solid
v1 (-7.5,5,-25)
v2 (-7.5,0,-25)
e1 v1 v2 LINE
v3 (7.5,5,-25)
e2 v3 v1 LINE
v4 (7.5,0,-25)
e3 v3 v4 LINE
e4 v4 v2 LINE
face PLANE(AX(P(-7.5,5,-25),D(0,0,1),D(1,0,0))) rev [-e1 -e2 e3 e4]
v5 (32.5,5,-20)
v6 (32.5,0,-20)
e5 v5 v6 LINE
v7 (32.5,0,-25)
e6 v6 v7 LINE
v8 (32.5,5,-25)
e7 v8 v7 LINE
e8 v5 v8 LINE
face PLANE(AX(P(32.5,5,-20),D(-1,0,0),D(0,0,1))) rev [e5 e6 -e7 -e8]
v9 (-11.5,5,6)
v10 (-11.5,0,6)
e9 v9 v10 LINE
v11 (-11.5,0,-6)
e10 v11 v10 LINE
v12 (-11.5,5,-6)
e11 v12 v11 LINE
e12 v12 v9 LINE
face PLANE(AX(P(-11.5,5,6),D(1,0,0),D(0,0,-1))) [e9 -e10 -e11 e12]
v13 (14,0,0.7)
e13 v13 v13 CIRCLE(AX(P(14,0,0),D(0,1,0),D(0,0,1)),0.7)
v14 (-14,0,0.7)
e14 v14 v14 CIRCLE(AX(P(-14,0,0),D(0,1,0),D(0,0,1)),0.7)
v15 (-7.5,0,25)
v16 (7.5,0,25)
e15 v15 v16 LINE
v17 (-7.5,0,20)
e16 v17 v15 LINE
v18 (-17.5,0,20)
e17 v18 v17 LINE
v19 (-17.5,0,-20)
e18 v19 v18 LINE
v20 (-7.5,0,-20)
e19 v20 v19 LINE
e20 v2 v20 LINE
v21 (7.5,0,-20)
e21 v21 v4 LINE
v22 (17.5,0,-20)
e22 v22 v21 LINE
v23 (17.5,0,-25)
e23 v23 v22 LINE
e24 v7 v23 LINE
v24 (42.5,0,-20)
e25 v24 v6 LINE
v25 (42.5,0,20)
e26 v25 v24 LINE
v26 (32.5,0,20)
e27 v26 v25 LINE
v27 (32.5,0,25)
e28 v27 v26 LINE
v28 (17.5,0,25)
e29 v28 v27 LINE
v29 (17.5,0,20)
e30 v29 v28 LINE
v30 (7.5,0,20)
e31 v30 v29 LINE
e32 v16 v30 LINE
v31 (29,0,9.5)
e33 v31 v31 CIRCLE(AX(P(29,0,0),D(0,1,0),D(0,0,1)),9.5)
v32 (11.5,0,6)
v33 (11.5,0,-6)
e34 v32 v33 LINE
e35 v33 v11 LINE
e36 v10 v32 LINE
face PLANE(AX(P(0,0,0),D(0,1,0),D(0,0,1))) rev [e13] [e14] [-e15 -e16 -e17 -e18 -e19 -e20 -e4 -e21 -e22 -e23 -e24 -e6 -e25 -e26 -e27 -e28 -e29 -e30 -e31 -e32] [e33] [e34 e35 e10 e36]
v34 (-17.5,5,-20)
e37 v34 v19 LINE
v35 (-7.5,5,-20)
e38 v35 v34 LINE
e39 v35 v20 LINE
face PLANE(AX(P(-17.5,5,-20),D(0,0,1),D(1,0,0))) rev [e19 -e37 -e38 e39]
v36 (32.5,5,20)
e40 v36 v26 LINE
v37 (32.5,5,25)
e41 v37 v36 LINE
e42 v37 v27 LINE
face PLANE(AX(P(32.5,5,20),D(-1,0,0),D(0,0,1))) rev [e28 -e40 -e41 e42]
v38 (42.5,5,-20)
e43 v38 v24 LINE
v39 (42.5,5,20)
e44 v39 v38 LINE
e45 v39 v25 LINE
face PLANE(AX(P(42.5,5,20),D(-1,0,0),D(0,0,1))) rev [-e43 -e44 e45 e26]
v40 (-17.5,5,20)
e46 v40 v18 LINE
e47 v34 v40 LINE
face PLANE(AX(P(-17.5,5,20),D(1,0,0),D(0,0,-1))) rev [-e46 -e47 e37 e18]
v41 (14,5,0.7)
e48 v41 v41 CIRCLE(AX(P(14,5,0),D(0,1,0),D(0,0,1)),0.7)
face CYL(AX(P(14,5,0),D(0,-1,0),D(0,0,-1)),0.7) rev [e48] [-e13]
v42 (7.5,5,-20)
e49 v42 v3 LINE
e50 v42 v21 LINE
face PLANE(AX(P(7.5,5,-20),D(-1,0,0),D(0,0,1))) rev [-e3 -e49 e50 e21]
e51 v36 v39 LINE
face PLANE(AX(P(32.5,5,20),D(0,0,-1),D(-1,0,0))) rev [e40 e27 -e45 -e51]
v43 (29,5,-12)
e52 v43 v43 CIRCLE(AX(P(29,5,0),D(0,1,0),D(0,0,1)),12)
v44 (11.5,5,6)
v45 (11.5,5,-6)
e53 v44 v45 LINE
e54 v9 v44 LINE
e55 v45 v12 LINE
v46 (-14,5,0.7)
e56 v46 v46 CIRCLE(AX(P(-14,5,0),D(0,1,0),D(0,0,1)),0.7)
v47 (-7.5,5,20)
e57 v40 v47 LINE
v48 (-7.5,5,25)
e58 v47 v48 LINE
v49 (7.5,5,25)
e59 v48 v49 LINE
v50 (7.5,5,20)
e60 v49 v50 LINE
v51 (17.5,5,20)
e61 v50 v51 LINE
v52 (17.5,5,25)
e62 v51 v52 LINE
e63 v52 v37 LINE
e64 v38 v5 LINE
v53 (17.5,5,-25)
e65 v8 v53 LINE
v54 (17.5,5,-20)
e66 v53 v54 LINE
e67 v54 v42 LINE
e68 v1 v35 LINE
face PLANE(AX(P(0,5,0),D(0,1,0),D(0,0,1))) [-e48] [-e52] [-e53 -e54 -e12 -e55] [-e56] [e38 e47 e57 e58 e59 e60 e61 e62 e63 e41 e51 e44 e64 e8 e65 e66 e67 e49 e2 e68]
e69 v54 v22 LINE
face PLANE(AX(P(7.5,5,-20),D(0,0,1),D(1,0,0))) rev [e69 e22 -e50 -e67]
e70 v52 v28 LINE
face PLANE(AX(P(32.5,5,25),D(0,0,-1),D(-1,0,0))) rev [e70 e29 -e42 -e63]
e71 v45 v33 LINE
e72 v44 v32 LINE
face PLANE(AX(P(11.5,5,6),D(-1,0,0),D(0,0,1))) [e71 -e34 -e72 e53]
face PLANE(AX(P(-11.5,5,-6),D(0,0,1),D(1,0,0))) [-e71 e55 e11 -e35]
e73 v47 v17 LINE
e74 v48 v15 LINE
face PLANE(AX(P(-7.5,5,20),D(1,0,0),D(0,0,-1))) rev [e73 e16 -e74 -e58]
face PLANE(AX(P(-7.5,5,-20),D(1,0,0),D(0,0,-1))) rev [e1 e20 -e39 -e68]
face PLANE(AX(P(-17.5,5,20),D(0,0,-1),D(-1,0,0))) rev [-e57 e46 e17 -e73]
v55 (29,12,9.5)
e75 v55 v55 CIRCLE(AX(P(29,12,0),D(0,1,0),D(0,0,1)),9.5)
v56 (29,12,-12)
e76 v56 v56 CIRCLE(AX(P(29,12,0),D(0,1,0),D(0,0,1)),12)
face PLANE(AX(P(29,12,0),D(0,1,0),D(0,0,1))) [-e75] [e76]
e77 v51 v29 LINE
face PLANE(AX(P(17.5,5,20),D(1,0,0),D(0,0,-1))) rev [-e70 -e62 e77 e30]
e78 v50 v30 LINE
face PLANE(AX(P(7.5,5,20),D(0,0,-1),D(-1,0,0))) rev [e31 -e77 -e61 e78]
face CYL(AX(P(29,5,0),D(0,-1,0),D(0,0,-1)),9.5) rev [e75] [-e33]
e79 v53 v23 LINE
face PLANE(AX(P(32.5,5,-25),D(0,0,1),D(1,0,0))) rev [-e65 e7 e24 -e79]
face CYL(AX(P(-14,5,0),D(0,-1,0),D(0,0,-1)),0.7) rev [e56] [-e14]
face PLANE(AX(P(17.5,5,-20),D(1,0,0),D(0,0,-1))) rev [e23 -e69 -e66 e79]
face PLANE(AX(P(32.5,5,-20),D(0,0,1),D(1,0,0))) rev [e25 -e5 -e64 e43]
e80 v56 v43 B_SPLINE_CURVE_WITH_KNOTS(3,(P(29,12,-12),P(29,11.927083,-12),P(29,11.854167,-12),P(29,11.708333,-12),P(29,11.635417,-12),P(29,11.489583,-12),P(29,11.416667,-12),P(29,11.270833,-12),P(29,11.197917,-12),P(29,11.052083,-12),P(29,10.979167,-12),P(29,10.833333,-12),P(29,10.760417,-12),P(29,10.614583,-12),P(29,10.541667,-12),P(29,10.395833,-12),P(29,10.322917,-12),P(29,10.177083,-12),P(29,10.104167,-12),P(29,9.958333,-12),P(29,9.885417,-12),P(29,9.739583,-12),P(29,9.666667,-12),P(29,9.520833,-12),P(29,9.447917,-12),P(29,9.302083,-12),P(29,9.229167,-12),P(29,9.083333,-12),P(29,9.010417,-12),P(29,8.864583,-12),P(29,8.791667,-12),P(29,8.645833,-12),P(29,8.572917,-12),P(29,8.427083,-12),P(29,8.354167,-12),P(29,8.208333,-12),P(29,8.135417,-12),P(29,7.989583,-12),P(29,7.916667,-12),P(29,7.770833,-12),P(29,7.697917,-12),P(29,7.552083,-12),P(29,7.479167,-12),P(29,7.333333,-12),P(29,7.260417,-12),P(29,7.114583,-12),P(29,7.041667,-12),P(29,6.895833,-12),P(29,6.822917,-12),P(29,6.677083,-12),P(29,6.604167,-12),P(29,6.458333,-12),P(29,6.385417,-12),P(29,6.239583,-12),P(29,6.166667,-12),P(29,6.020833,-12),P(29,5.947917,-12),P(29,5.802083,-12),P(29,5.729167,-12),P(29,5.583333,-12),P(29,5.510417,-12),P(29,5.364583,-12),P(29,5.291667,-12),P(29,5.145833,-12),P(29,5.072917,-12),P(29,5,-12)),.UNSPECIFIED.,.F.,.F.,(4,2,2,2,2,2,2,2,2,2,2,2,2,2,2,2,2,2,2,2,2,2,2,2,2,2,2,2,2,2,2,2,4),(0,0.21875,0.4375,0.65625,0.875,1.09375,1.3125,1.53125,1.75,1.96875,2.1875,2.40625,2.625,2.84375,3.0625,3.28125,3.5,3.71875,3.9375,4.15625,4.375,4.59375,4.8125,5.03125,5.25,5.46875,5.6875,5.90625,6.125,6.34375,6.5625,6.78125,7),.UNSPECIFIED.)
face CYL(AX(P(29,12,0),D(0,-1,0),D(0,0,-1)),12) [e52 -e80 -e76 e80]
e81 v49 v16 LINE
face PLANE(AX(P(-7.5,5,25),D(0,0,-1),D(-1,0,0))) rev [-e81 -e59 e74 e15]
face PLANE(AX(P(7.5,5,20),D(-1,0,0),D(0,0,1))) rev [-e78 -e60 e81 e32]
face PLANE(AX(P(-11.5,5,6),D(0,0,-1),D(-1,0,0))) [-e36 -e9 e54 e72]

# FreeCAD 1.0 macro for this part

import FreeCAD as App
import Part
import Sketcher


def add_polygon(sketch, points):
    """Adds a closed chain of lines whose ends are joined by coincident constraints."""
    first, n = sketch.GeometryCount, len(points)
    for a, b in zip(points, points[1:] + points[:1]):
        sketch.addGeometry(Part.LineSegment(App.Vector(*a, 0), App.Vector(*b, 0)), False)
    for i in range(n):
        sketch.addConstraint(Sketcher.Constraint("Coincident", first + i, 2, first + (i + 1) % n, 1))

doc = App.newDocument("Part")
body = doc.addObject("PartDesign::Body", "Body")

sketch1 = body.newObject("Sketcher::SketchObject", "Sketch")
sketch1.AttachmentSupport = (doc.getObject("XZ_Plane"), [""])
sketch1.MapMode = "FlatFace"
add_polygon(sketch1, [(17.5, -20), (7.5, -20), (7.5, -25), (-7.5, -25), (-7.5, -20), (-17.5, -20), (-17.5, 20), (-7.5, 20), (-7.5, 25), (7.5, 25), (7.5, 20), (17.5, 20), (17.5, 25), (32.5, 25), (32.5, 20), (42.5, 20), (42.5, -20), (32.5, -20), (32.5, -25), (17.5, -25)])
sketch1.addGeometry(Part.Circle(App.Vector(29, 0, 0), App.Vector(0, 0, 1), 9.5), False)
sketch1.addGeometry(Part.Circle(App.Vector(14, 0, 0), App.Vector(0, 0, 1), 0.7), False)
add_polygon(sketch1, [(-11.5, 6), (-11.5, -6), (11.5, -6), (11.5, 6)])
sketch1.addGeometry(Part.Circle(App.Vector(-14, 0, 0), App.Vector(0, 0, 1), 0.7), False)
sketch1.addConstraint([
    Sketcher.Constraint("Horizontal", 0),
    Sketcher.Constraint("Vertical", 1),
    Sketcher.Constraint("Horizontal", 2),
    Sketcher.Constraint("Vertical", 3),
    Sketcher.Constraint("Horizontal", 4),
    Sketcher.Constraint("Vertical", 5),
    Sketcher.Constraint("Horizontal", 6),
    Sketcher.Constraint("Vertical", 7),
    Sketcher.Constraint("Horizontal", 8),
    Sketcher.Constraint("Vertical", 9),
    Sketcher.Constraint("Horizontal", 10),
    Sketcher.Constraint("Vertical", 11),
    Sketcher.Constraint("Horizontal", 12),
    Sketcher.Constraint("Vertical", 13),
    Sketcher.Constraint("Horizontal", 14),
    Sketcher.Constraint("Vertical", 15),
    Sketcher.Constraint("Horizontal", 16),
    Sketcher.Constraint("Vertical", 17),
    Sketcher.Constraint("Horizontal", 18),
    Sketcher.Constraint("Vertical", 19),
    Sketcher.Constraint("Vertical", 22),
    Sketcher.Constraint("Horizontal", 23),
    Sketcher.Constraint("Vertical", 24),
    Sketcher.Constraint("Horizontal", 25),
    Sketcher.Constraint("Equal", 21, 26),
    Sketcher.Constraint("Symmetric", 21, 3, 26, 3, -1, 1),
    Sketcher.Constraint("Symmetric", 0, 2, 6, 2, -1, 1),
    Sketcher.Constraint("Symmetric", 2, 2, 8, 2, -1, 1),
    Sketcher.Constraint("Symmetric", 4, 2, 10, 2, -1, 1),
    Sketcher.Constraint("Symmetric", 22, 2, 24, 2, -1, 1),
    Sketcher.Constraint("Symmetric", 0, 2, 3, 2, -2),
    Sketcher.Constraint("Symmetric", 13, 2, 16, 2, -1),
    Sketcher.Constraint("Symmetric", 11, 2, 18, 2, -1),
    Sketcher.Constraint("PointOnObject", 20, 3, -1),
    Sketcher.Constraint("PointOnObject", 21, 3, -1),
    Sketcher.Constraint("Horizontal", 8, 2, 11, 2),
    Sketcher.Constraint("Horizontal", 10, 2, 13, 2),
    Sketcher.Constraint("Equal", 8, 12),
    Sketcher.Constraint("Equal", 10, 14),
    Sketcher.Constraint("Diameter", 20, 19.0),
    Sketcher.Constraint("Diameter", 21, 1.4),
    Sketcher.Constraint("DistanceX", 0, 2, 0, 1, 10.0),
    Sketcher.Constraint("DistanceX", 2, 2, 2, 1, 15.0),
    Sketcher.Constraint("DistanceX", 23, 1, 23, 2, 23.0),
    Sketcher.Constraint("DistanceY", 1, 2, 1, 1, 5.0),
    Sketcher.Constraint("DistanceY", 5, 1, 5, 2, 40.0),
    Sketcher.Constraint("DistanceY", 22, 2, 22, 1, 12.0),
    Sketcher.Constraint("DistanceX", -1, 1, 20, 3, 29.0),
    Sketcher.Constraint("DistanceX", -1, 1, 21, 3, 14.0),
])
pad1 = body.newObject("PartDesign::Pad", "Pad")
pad1.Profile = sketch1
pad1.Length = 5
pad1.Reversed = True

sketch2 = body.newObject("Sketcher::SketchObject", "Sketch001")
sketch2.AttachmentSupport = (doc.getObject("XZ_Plane"), [""])
sketch2.MapMode = "FlatFace"
sketch2.AttachmentOffset = App.Placement(App.Vector(0, 0, -5), App.Rotation())
sketch2.addGeometry([
    Part.Circle(App.Vector(29, 0, 0), App.Vector(0, 0, 1), 12),
    Part.Circle(App.Vector(29, 0, 0), App.Vector(0, 0, 1), 9.5),
], False)
sketch2.addConstraint([
    Sketcher.Constraint("Coincident", 1, 3, 0, 3),
    Sketcher.Constraint("PointOnObject", 0, 3, -1),
    Sketcher.Constraint("Diameter", 0, 24.0),
    Sketcher.Constraint("Diameter", 1, 19.0),
    Sketcher.Constraint("DistanceX", -1, 1, 0, 3, 29.0),
])
pad2 = body.newObject("PartDesign::Pad", "Pad001")
pad2.Profile = sketch2
pad2.Length = 7
pad2.Reversed = True

doc.recompute()
